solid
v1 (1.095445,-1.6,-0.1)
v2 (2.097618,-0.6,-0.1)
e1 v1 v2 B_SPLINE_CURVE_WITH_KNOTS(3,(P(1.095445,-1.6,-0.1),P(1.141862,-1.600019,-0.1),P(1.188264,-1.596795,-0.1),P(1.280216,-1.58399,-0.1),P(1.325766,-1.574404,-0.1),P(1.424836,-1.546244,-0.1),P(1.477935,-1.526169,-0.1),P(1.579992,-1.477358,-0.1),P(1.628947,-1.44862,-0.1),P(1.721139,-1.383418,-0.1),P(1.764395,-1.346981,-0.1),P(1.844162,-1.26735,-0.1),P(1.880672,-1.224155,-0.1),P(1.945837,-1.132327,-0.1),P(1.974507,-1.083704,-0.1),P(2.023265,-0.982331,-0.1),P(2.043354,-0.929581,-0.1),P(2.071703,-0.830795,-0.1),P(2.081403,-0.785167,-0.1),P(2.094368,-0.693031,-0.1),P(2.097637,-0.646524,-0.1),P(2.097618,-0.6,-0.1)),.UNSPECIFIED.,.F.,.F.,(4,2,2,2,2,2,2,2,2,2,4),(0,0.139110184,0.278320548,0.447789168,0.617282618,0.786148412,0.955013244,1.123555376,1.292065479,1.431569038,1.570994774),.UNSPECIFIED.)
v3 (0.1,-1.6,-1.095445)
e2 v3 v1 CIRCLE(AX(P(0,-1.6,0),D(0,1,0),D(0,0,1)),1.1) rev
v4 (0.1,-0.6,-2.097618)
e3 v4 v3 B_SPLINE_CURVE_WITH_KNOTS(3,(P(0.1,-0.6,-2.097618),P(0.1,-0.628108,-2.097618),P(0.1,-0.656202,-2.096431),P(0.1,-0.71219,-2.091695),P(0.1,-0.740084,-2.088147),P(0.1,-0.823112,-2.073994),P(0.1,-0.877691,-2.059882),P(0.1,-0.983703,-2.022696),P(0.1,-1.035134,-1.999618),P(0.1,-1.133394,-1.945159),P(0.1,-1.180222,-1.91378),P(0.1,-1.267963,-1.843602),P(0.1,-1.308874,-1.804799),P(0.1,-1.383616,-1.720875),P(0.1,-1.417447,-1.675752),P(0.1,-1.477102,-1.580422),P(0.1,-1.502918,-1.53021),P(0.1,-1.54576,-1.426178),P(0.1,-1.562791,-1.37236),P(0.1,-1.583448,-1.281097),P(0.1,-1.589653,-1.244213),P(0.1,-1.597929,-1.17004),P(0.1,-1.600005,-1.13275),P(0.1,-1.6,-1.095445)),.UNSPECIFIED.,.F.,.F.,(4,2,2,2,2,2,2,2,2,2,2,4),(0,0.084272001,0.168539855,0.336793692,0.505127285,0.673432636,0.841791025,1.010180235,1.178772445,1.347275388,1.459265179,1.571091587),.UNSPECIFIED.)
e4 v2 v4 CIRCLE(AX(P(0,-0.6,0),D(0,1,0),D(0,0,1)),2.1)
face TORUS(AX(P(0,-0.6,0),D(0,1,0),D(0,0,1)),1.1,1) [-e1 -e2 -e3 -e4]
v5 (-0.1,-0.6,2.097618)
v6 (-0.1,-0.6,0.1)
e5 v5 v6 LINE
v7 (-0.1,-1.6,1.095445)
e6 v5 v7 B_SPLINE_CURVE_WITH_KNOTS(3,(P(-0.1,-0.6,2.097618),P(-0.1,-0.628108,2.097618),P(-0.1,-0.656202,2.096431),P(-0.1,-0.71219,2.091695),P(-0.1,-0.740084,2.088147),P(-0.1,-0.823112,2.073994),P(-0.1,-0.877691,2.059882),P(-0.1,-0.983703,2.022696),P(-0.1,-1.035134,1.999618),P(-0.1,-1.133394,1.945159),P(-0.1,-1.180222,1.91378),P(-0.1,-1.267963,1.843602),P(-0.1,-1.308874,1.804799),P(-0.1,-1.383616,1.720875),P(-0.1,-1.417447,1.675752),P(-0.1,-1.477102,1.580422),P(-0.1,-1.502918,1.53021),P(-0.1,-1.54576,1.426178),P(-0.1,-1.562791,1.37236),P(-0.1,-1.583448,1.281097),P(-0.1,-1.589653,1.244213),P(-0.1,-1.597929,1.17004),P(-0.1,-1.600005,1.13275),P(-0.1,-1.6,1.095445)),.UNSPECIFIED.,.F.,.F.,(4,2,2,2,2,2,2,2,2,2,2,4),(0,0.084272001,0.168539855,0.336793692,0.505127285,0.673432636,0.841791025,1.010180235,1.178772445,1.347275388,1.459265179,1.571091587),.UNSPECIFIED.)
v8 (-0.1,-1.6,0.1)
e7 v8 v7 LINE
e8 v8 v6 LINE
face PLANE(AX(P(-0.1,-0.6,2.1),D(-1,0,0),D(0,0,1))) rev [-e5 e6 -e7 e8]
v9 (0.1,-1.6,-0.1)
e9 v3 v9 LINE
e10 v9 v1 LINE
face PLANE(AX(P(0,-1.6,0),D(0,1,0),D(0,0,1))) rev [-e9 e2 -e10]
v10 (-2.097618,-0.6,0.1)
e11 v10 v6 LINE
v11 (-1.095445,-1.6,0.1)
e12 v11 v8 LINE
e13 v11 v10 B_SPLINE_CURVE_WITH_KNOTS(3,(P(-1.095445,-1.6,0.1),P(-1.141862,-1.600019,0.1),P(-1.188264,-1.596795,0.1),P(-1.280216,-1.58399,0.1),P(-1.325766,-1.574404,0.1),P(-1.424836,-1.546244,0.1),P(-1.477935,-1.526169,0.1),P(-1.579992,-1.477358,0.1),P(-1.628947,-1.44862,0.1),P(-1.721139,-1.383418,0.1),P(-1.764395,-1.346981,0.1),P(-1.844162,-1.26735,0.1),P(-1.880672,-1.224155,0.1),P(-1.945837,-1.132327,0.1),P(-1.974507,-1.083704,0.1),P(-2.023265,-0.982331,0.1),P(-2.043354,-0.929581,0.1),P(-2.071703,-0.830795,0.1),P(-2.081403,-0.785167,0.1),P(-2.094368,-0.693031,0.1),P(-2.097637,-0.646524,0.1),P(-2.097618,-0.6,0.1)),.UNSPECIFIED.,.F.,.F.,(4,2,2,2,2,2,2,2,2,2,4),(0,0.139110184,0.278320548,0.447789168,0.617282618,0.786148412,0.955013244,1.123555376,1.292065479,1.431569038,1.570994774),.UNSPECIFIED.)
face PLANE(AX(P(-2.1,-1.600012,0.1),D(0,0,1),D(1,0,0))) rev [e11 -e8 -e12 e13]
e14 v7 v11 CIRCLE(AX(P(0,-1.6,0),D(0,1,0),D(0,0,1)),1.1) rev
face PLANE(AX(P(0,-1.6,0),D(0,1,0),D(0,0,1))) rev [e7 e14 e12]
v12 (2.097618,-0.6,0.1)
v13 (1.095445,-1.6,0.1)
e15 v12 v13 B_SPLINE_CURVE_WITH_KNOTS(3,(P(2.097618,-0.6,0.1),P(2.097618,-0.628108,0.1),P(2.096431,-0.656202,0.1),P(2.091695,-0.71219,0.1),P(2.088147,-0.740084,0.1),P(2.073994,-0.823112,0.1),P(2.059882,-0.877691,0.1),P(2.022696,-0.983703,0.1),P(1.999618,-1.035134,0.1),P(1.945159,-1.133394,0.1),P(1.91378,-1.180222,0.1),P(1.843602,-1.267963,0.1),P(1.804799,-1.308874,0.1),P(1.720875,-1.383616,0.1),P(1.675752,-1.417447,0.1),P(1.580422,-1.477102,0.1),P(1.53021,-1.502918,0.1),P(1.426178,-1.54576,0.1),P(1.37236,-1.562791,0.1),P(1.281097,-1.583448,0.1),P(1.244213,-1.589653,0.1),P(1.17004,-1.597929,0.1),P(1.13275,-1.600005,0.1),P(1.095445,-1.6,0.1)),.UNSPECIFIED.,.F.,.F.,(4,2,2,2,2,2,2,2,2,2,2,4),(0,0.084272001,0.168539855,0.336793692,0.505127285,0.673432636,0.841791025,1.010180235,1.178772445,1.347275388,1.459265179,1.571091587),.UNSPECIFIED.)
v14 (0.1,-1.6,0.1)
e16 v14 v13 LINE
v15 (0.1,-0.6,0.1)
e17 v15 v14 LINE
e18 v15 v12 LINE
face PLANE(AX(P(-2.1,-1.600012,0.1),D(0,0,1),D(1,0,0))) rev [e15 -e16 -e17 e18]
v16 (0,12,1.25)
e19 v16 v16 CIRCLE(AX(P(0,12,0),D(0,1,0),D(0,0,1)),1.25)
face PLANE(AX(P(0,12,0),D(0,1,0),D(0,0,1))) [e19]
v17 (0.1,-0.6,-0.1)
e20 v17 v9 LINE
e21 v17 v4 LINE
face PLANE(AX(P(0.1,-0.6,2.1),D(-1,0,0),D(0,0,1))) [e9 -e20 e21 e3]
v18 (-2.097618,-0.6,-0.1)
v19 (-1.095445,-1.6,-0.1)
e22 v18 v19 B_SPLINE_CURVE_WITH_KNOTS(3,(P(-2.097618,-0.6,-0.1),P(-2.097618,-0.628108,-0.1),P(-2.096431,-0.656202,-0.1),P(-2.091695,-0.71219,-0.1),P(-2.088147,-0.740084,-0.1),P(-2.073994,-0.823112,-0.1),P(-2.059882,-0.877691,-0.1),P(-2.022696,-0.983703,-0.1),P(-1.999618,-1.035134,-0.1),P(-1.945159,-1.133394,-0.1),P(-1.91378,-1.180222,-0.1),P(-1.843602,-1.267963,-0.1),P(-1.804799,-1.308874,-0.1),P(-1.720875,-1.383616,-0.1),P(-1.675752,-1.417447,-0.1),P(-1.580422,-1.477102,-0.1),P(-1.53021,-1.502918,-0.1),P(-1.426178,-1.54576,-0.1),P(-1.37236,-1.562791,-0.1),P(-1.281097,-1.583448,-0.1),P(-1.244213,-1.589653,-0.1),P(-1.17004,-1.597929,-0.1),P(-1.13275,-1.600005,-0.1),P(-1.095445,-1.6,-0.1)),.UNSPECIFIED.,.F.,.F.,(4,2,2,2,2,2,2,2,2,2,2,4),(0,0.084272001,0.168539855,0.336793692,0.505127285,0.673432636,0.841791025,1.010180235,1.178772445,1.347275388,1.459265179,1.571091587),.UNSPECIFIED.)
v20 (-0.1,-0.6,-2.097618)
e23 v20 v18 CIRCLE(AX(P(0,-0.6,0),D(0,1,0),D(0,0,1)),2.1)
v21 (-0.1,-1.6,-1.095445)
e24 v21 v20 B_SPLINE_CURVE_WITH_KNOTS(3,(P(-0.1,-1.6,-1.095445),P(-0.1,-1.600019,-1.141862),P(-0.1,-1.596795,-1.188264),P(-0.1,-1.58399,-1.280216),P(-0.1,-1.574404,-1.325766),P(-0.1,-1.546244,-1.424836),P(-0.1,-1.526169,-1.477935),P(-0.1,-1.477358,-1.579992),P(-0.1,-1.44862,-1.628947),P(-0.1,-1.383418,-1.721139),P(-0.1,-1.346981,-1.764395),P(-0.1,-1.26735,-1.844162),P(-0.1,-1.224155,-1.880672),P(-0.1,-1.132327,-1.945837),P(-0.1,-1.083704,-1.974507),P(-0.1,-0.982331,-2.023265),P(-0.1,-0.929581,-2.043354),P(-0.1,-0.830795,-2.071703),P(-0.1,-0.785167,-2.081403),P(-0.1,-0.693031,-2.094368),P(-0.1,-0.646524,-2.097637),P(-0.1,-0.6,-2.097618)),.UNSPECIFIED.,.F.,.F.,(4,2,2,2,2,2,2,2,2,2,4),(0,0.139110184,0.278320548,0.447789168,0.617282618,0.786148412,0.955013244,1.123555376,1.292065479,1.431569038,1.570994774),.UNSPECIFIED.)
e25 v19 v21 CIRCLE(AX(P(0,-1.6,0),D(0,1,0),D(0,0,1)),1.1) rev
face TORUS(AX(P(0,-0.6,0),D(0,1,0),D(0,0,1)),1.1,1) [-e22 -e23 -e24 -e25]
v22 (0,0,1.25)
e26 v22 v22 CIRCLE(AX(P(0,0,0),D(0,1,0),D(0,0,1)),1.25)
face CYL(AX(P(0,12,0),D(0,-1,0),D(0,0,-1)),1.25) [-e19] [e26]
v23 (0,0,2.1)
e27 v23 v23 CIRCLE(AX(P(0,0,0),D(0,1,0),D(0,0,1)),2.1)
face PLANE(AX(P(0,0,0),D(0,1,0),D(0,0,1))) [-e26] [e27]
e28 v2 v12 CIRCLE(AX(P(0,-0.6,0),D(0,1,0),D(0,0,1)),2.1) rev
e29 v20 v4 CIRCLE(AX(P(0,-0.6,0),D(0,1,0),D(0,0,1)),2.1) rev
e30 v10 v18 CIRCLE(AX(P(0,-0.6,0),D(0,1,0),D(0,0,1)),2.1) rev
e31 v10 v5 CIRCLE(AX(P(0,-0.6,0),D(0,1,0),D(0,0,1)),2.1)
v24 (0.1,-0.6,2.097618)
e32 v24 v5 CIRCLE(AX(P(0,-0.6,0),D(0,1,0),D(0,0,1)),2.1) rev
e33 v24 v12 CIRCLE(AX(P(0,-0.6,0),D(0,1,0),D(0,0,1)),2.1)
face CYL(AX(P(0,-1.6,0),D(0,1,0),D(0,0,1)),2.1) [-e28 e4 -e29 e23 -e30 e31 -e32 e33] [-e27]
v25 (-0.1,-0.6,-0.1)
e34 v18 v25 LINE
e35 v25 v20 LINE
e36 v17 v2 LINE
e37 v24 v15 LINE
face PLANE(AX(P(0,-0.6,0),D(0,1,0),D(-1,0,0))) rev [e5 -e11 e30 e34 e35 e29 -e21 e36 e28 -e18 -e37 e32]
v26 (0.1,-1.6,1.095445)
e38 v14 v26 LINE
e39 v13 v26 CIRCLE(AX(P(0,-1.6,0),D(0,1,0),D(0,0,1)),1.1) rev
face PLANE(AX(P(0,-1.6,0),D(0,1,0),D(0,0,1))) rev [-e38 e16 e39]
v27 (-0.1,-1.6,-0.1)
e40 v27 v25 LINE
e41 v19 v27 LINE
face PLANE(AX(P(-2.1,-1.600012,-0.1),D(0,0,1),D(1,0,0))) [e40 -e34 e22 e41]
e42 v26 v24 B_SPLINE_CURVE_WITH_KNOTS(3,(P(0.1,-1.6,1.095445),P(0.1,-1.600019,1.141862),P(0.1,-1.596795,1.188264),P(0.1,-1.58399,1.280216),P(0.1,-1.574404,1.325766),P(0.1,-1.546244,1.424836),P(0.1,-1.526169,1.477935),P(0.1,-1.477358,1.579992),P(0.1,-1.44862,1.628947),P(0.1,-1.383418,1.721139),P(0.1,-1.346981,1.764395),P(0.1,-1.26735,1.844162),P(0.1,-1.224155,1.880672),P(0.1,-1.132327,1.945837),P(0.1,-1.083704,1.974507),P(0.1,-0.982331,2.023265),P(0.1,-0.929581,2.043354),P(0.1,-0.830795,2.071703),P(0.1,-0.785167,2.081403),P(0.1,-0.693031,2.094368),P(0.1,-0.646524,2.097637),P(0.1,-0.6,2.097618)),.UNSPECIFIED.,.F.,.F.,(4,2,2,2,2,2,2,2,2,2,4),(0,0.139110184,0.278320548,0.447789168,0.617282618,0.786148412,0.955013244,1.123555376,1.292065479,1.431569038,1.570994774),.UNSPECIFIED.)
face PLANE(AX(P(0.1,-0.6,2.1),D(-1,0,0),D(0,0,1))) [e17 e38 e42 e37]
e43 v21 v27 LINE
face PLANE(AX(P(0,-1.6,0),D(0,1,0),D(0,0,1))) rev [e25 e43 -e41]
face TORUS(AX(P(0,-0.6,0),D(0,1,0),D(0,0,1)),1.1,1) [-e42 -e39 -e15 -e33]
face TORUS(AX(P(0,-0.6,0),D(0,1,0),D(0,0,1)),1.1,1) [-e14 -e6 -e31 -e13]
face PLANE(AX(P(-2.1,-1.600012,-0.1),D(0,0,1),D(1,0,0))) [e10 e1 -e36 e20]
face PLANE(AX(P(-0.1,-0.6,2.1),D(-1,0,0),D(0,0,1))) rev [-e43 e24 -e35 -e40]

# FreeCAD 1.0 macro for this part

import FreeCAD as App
import Part
import Sketcher
from FreeCAD import Vector


def edges_at(feature, points):
    """Names of the edges that pass closest to the given points."""
    edges = feature.Shape.Edges
    near = lambda p: min(range(len(edges)), key=lambda i: edges[i].distToShape(Part.Vertex(*p))[0])
    return sorted({f"Edge{near(p) + 1}" for p in points})

doc = App.newDocument("Part")
body = doc.addObject("PartDesign::Body", "Body")

# Sketch on XZ plane
sketch1 = body.newObject("Sketcher::SketchObject", "Sketch")
sketch1.AttachmentSupport = (doc.getObject("XZ_Plane"), [""])
sketch1.MapMode = "FlatFace"
sketch1.addGeometry(Part.Circle(Vector(0, 0, 0), Vector(0, 0, 1), 2.1), False)
sketch1.addConstraint(Sketcher.Constraint("Coincident", 0, 3, -1, 1))
sketch1.addConstraint(Sketcher.Constraint("Diameter", 0, 4.2))
pad1 = body.newObject("PartDesign::Pad", "Pad")
pad1.Profile = sketch1
pad1.Length = 1.6

# Sketch on XZ plane
sketch2 = body.newObject("Sketcher::SketchObject", "Sketch001")
sketch2.AttachmentSupport = (doc.getObject("XZ_Plane"), [""])
sketch2.MapMode = "FlatFace"
sketch2.addGeometry(Part.Circle(Vector(0, 0, 0), Vector(0, 0, 1), 1.2), False)
sketch2.addConstraint(Sketcher.Constraint("Coincident", 0, 3, -1, 1))
sketch2.addConstraint(Sketcher.Constraint("Diameter", 0, 2.5))
pad2 = body.newObject("PartDesign::Pad", "Pad001")
pad2.Profile = sketch2
pad2.Length = 12
pad2.Reversed = True

# Sketch on XZ plane
sketch3 = body.newObject("Sketcher::SketchObject", "Sketch002")
sketch3.AttachmentSupport = (doc.getObject("XZ_Plane"), [""])
sketch3.MapMode = "FlatFace"
sketch3.AttachmentOffset = App.Placement(Vector(0, 0, 1.6), App.Rotation())
sketch3.addGeometry(Part.LineSegment(Vector(-2.1, 0.1, 0), Vector(-2.1, -0.1, 0)), False)
sketch3.addGeometry(Part.LineSegment(Vector(-2.1, -0.1, 0), Vector(-0.1, -0.1, 0)), False)
sketch3.addGeometry(Part.LineSegment(Vector(-0.1, -0.1, 0), Vector(-0.1, -2.1, 0)), False)
sketch3.addGeometry(Part.LineSegment(Vector(-0.1, -2.1, 0), Vector(0.1, -2.1, 0)), False)
sketch3.addGeometry(Part.LineSegment(Vector(0.1, -2.1, 0), Vector(0.1, -0.1, 0)), False)
sketch3.addGeometry(Part.LineSegment(Vector(0.1, -0.1, 0), Vector(2.1, -0.1, 0)), False)
sketch3.addGeometry(Part.LineSegment(Vector(2.1, -0.1, 0), Vector(2.1, 0.1, 0)), False)
sketch3.addGeometry(Part.LineSegment(Vector(2.1, 0.1, 0), Vector(0.1, 0.1, 0)), False)
sketch3.addGeometry(Part.LineSegment(Vector(0.1, 0.1, 0), Vector(0.1, 2.1, 0)), False)
sketch3.addGeometry(Part.LineSegment(Vector(0.1, 2.1, 0), Vector(-0.1, 2.1, 0)), False)
sketch3.addGeometry(Part.LineSegment(Vector(-0.1, 2.1, 0), Vector(-0.1, 0.1, 0)), False)
sketch3.addGeometry(Part.LineSegment(Vector(-0.1, 0.1, 0), Vector(-2.1, 0.1, 0)), False)
sketch3.addConstraint(Sketcher.Constraint("Coincident", 0, 2, 1, 1))
sketch3.addConstraint(Sketcher.Constraint("Coincident", 1, 2, 2, 1))
sketch3.addConstraint(Sketcher.Constraint("Coincident", 2, 2, 3, 1))
sketch3.addConstraint(Sketcher.Constraint("Coincident", 3, 2, 4, 1))
sketch3.addConstraint(Sketcher.Constraint("Coincident", 4, 2, 5, 1))
sketch3.addConstraint(Sketcher.Constraint("Coincident", 5, 2, 6, 1))
sketch3.addConstraint(Sketcher.Constraint("Coincident", 6, 2, 7, 1))
sketch3.addConstraint(Sketcher.Constraint("Coincident", 7, 2, 8, 1))
sketch3.addConstraint(Sketcher.Constraint("Coincident", 8, 2, 9, 1))
sketch3.addConstraint(Sketcher.Constraint("Coincident", 9, 2, 10, 1))
sketch3.addConstraint(Sketcher.Constraint("Coincident", 10, 2, 11, 1))
sketch3.addConstraint(Sketcher.Constraint("Coincident", 11, 2, 0, 1))
sketch3.addConstraint(Sketcher.Constraint("Vertical", 0))
sketch3.addConstraint(Sketcher.Constraint("Horizontal", 1))
sketch3.addConstraint(Sketcher.Constraint("Vertical", 2))
sketch3.addConstraint(Sketcher.Constraint("Horizontal", 3))
sketch3.addConstraint(Sketcher.Constraint("Vertical", 4))
sketch3.addConstraint(Sketcher.Constraint("Horizontal", 5))
sketch3.addConstraint(Sketcher.Constraint("Vertical", 6))
sketch3.addConstraint(Sketcher.Constraint("Horizontal", 7))
sketch3.addConstraint(Sketcher.Constraint("Vertical", 8))
sketch3.addConstraint(Sketcher.Constraint("Horizontal", 9))
sketch3.addConstraint(Sketcher.Constraint("Vertical", 10))
sketch3.addConstraint(Sketcher.Constraint("Horizontal", 11))
sketch3.addConstraint(Sketcher.Constraint("Symmetric", 0, 2, 6, 2, -1, 1))
sketch3.addConstraint(Sketcher.Constraint("Symmetric", 2, 2, 8, 2, -1, 1))
sketch3.addConstraint(Sketcher.Constraint("Symmetric", 4, 2, 10, 2, -1, 1))
sketch3.addConstraint(Sketcher.Constraint("Symmetric", 1, 2, 4, 2, -2))
sketch3.addConstraint(Sketcher.Constraint("Equal", 9, 0))
sketch3.addConstraint(Sketcher.Constraint("Equal", 11, 2))
sketch3.addConstraint(Sketcher.Constraint("DistanceX", 1, 1, 1, 2, 2.0))
sketch3.addConstraint(Sketcher.Constraint("DistanceX", 3, 1, 3, 2, 0.2))
pocket1 = body.newObject("PartDesign::Pocket", "Pocket")
pocket1.Profile = sketch3
pocket1.Type = "TwoLengths"
pocket1.Length = 14.920488
pocket1.Length2 = 1
pocket1.Reversed = True
doc.recompute()

fillet = body.newObject("PartDesign::Fillet", "Fillet")
fillet.Base = (pocket1, edges_at(pocket1, [
    (1.485, -1.6, 1.485),
    (-1.485, -1.6, 1.485),
    (-1.485, -1.6, -1.485),
    (1.485, -1.6, -1.485),
]))
fillet.Radius = 1

doc.recompute()
